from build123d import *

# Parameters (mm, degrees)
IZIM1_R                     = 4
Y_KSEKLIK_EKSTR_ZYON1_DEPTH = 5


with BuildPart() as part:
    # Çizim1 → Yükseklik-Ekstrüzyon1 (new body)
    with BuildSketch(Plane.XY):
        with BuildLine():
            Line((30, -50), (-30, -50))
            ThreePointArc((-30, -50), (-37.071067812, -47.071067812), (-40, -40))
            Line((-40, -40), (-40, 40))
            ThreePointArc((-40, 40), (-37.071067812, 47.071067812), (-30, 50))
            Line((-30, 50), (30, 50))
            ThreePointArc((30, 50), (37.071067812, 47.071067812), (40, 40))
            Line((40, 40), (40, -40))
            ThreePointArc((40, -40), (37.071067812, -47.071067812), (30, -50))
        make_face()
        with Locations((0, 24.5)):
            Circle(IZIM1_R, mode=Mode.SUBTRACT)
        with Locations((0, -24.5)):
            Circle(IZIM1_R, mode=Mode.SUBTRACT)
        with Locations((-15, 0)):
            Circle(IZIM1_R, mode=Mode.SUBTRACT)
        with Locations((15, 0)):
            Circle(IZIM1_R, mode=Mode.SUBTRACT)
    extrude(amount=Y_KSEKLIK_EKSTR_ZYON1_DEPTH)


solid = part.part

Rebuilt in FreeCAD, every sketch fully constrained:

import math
import FreeCAD as App
import Part
import Sketcher
from FreeCAD import Vector

doc = App.newDocument("Part")
body = doc.addObject("PartDesign::Body", "Body")

sketch1 = doc.addObject("Sketcher::SketchObject", "Sketch")
body.addObject(sketch1)
sketch1.AttachmentSupport = (doc.XY_Plane, [""])
sketch1.MapMode = "FlatFace"
sketch1.addGeometry(Part.LineSegment(Vector(-30, -50, 0), Vector(30, -50, 0)), False)
sketch1.addGeometry(Part.ArcOfCircle(Part.Circle(Vector(30, -40, 0), Vector(0, 0, 1), 10), math.radians(-90), math.radians(0)), False)
sketch1.addGeometry(Part.LineSegment(Vector(40, -40, 0), Vector(40, 40, 0)), False)
sketch1.addGeometry(Part.ArcOfCircle(Part.Circle(Vector(30, 40, 0), Vector(0, 0, 1), 10), math.radians(0), math.radians(90)), False)
sketch1.addGeometry(Part.LineSegment(Vector(30, 50, 0), Vector(-30, 50, 0)), False)
sketch1.addGeometry(Part.ArcOfCircle(Part.Circle(Vector(-30, 40, 0), Vector(0, 0, 1), 10), math.radians(90), math.radians(180)), False)
sketch1.addGeometry(Part.LineSegment(Vector(-40, 40, 0), Vector(-40, -40, 0)), False)
sketch1.addGeometry(Part.ArcOfCircle(Part.Circle(Vector(-30, -40, 0), Vector(0, 0, 1), 10), math.radians(180), math.radians(270)), False)
sketch1.addGeometry(Part.Circle(Vector(0, -24.5, 0), Vector(0, 0, 1), 4), False)
sketch1.addGeometry(Part.Circle(Vector(15, 0, 0), Vector(0, 0, 1), 4), False)
sketch1.addGeometry(Part.Circle(Vector(-15, 0, 0), Vector(0, 0, 1), 4), False)
sketch1.addGeometry(Part.Circle(Vector(0, 24.5, 0), Vector(0, 0, 1), 4), False)
sketch1.addConstraint(Sketcher.Constraint("Tangent", 0, 2, 1, 1))
sketch1.addConstraint(Sketcher.Constraint("Tangent", 1, 2, 2, 1))
sketch1.addConstraint(Sketcher.Constraint("Tangent", 2, 2, 3, 1))
sketch1.addConstraint(Sketcher.Constraint("Tangent", 3, 2, 4, 1))
sketch1.addConstraint(Sketcher.Constraint("Tangent", 4, 2, 5, 1))
sketch1.addConstraint(Sketcher.Constraint("Tangent", 5, 2, 6, 1))
sketch1.addConstraint(Sketcher.Constraint("Tangent", 6, 2, 7, 1))
sketch1.addConstraint(Sketcher.Constraint("Tangent", 7, 2, 0, 1))
sketch1.addConstraint(Sketcher.Constraint("Horizontal", 0))
sketch1.addConstraint(Sketcher.Constraint("Vertical", 2))
sketch1.addConstraint(Sketcher.Constraint("Horizontal", 4))
sketch1.addConstraint(Sketcher.Constraint("Vertical", 6))
sketch1.addConstraint(Sketcher.Constraint("Equal", 1, 3))
sketch1.addConstraint(Sketcher.Constraint("Equal", 3, 5))
sketch1.addConstraint(Sketcher.Constraint("Equal", 5, 7))
sketch1.addConstraint(Sketcher.Constraint("Equal", 8, 9))
sketch1.addConstraint(Sketcher.Constraint("Equal", 9, 10))
sketch1.addConstraint(Sketcher.Constraint("Equal", 10, 11))
sketch1.addConstraint(Sketcher.Constraint("Symmetric", 1, 3, 5, 3, -1, 1))
sketch1.addConstraint(Sketcher.Constraint("Symmetric", 9, 3, 10, 3, -1, 1))
sketch1.addConstraint(Sketcher.Constraint("Symmetric", 8, 3, 11, 3, -1, 1))
sketch1.addConstraint(Sketcher.Constraint("PointOnObject", 8, 3, -2))
sketch1.addConstraint(Sketcher.Constraint("PointOnObject", 9, 3, -1))
sketch1.addConstraint(Sketcher.Constraint("Diameter", 8, 8.0))
sketch1.addConstraint(Sketcher.Constraint("Radius", 1, 10.0))
sketch1.addConstraint(Sketcher.Constraint("DistanceX", 0, 1, 0, 2, 60.0))
sketch1.addConstraint(Sketcher.Constraint("DistanceY", 2, 1, 2, 2, 80.0))
sketch1.addConstraint(Sketcher.Constraint("DistanceX", -1, 1, 9, 3, 15.0))
sketch1.addConstraint(Sketcher.Constraint("DistanceY", 8, 3, 11, 3, 49.0))
pad1 = doc.addObject("PartDesign::Pad", "Pad")
body.addObject(pad1)
pad1.Profile = sketch1
pad1.Length = 5

doc.recompute()
